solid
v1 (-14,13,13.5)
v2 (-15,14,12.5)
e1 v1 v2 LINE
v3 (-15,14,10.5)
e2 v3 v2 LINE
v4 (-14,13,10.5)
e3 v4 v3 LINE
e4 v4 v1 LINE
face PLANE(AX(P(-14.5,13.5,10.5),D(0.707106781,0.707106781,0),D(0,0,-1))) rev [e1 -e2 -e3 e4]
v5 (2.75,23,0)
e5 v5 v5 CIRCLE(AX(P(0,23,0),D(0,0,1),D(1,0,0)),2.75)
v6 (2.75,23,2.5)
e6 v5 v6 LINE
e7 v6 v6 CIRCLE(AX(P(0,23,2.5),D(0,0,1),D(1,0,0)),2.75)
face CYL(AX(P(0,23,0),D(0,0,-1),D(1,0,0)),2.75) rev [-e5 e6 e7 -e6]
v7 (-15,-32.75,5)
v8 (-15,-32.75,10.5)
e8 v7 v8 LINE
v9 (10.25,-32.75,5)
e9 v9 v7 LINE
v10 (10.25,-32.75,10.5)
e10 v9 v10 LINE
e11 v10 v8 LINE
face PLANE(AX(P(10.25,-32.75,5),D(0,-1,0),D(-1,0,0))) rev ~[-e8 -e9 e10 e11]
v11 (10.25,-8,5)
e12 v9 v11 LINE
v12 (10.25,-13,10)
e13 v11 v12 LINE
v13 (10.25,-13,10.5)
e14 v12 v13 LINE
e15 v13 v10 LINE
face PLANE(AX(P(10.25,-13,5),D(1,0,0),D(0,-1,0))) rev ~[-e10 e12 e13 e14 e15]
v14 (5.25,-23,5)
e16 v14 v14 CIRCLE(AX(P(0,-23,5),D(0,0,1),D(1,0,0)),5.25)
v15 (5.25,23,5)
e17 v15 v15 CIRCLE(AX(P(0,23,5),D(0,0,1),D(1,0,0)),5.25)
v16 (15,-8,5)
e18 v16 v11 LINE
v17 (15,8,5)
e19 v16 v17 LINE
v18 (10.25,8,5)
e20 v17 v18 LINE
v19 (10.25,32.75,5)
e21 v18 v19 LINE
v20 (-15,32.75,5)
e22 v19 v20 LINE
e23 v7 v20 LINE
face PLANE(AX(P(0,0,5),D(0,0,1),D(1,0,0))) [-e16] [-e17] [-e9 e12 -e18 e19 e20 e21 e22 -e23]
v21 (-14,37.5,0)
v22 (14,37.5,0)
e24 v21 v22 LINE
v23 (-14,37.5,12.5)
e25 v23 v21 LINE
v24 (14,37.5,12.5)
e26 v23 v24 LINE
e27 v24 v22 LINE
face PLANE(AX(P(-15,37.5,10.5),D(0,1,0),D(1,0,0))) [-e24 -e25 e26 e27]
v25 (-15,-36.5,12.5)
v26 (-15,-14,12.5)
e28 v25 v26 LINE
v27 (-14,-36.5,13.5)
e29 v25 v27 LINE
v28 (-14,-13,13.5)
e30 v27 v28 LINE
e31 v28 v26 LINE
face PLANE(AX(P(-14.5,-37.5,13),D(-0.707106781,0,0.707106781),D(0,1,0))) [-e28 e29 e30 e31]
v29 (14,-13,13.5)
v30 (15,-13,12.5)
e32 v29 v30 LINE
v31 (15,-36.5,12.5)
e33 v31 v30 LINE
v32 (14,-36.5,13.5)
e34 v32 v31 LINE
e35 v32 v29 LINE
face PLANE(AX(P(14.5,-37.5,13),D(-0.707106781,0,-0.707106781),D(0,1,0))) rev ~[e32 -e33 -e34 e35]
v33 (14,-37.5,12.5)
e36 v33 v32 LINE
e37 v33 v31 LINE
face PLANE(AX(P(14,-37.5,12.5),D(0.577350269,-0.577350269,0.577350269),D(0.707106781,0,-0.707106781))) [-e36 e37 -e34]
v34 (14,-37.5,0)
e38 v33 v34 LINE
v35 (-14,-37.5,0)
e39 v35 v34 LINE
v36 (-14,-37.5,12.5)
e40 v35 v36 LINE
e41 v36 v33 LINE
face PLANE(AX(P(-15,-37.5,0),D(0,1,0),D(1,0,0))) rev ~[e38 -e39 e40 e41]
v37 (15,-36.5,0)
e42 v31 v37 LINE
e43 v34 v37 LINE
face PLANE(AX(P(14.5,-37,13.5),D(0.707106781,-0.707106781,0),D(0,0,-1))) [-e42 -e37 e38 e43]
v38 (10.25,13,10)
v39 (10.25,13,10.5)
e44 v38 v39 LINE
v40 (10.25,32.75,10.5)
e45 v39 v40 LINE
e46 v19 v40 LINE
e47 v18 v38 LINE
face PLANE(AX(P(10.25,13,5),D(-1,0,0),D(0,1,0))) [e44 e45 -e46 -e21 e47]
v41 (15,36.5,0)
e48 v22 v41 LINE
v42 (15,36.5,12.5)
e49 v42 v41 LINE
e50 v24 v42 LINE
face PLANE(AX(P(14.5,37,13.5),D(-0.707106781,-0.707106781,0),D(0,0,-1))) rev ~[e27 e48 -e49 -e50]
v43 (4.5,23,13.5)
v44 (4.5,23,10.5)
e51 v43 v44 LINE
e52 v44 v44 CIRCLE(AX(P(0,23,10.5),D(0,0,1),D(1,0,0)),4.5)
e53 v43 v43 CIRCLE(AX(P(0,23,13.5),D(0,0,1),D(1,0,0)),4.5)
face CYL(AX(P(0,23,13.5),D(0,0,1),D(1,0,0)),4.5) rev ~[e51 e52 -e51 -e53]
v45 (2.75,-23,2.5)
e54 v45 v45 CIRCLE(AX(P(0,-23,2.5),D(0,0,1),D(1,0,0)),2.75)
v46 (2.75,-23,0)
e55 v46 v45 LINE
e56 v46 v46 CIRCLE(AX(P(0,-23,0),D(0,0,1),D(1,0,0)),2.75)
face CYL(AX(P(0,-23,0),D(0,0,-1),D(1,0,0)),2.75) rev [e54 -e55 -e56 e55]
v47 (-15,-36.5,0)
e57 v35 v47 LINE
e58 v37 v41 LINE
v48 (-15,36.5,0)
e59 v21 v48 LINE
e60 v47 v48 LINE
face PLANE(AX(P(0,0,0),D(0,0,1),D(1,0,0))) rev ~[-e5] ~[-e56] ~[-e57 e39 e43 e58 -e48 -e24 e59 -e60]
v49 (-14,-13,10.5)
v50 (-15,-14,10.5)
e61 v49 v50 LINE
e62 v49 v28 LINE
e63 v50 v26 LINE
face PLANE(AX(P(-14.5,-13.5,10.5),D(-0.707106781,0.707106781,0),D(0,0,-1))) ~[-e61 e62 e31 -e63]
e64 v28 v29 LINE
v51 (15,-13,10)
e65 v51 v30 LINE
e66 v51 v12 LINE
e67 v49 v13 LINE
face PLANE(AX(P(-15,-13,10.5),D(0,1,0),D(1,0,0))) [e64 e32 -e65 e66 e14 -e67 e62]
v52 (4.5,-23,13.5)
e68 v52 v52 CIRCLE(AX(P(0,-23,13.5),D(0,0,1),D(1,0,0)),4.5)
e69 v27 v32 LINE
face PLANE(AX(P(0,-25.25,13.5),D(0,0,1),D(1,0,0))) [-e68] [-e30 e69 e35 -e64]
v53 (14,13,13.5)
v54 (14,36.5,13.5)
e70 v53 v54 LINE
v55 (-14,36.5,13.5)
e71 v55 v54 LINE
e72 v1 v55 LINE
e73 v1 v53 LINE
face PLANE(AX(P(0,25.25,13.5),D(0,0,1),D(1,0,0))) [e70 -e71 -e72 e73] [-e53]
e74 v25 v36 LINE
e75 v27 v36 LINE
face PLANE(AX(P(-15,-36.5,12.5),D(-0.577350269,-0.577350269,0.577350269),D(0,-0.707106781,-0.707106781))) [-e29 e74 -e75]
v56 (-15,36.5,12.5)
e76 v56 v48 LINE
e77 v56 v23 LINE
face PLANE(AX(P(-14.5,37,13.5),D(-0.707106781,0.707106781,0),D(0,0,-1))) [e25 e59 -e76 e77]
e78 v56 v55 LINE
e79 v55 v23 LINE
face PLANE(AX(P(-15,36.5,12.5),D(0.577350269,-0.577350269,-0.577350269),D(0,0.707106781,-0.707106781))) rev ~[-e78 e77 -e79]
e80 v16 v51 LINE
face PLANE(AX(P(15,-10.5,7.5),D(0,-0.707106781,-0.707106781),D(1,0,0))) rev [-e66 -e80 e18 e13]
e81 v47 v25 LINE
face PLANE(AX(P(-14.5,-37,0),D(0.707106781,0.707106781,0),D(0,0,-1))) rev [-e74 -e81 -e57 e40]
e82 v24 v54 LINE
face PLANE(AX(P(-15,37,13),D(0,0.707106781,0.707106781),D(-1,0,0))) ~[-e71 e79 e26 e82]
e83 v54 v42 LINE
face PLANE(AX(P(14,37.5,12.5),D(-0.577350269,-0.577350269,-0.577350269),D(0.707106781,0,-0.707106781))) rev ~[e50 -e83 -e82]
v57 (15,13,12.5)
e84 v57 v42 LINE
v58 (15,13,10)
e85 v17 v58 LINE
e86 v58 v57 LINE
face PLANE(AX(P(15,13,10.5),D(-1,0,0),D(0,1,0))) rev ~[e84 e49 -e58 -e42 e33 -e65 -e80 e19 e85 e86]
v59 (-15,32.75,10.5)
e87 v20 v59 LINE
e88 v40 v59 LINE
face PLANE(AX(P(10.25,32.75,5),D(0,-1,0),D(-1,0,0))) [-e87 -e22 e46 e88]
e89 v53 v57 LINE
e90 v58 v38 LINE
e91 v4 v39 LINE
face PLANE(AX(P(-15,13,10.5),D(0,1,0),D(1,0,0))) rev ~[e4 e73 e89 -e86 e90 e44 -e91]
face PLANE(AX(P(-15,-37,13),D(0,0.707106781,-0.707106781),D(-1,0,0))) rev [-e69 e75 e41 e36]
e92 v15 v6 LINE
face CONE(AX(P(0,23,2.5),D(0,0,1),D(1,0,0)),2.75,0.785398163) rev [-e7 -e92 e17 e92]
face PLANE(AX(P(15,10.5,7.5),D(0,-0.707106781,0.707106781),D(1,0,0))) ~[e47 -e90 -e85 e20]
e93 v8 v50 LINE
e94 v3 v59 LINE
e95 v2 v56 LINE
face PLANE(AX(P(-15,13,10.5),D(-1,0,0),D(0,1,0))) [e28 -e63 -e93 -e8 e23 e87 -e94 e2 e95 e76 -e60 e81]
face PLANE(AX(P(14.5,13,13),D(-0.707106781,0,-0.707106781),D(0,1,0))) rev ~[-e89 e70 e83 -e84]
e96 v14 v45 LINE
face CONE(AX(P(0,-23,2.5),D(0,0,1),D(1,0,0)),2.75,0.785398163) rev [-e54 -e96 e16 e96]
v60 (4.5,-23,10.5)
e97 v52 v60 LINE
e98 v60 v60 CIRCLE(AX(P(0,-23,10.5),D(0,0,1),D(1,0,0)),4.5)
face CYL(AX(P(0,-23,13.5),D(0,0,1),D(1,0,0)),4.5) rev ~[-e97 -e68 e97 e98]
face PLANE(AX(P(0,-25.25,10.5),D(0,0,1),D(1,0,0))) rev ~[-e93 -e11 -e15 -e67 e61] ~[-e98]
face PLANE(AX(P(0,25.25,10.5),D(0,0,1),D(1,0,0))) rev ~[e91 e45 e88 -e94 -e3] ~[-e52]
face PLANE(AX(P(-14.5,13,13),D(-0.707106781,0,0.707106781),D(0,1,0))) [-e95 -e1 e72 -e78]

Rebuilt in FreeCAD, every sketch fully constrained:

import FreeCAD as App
import Part
import Sketcher


def edges_at(feature, points):
    """Names of the edges that pass closest to the given points."""
    edges = feature.Shape.Edges
    near = lambda p: min(range(len(edges)), key=lambda i: edges[i].distToShape(Part.Vertex(*p))[0])
    return sorted({f"Edge{near(p) + 1}" for p in points})

doc = App.newDocument("Part")
body = doc.addObject("PartDesign::Body", "Body")

sketch1 = body.newObject("Sketcher::SketchObject", "Sketch")
sketch1.AttachmentSupport = (doc.getObject("XY_Plane"), [""])
sketch1.MapMode = "FlatFace"
sketch1.addGeometry(Part.LineSegment(App.Vector(-15, 37.5, 0), App.Vector(-15, -37.5, 0)), False)
sketch1.addGeometry(Part.LineSegment(App.Vector(-15, -37.5, 0), App.Vector(15, -37.5, 0)), False)
sketch1.addGeometry(Part.LineSegment(App.Vector(15, -37.5, 0), App.Vector(15, 37.5, 0)), False)
sketch1.addGeometry(Part.LineSegment(App.Vector(15, 37.5, 0), App.Vector(-15, 37.5, 0)), False)
sketch1.addGeometry(Part.Circle(App.Vector(0, -23, 0), App.Vector(0, 0, 1), 2.8), False)
sketch1.addGeometry(Part.Circle(App.Vector(0, 23, 0), App.Vector(0, 0, 1), 2.8), False)
sketch1.addConstraint(Sketcher.Constraint("Coincident", 0, 2, 1, 1))
sketch1.addConstraint(Sketcher.Constraint("Coincident", 1, 2, 2, 1))
sketch1.addConstraint(Sketcher.Constraint("Coincident", 2, 2, 3, 1))
sketch1.addConstraint(Sketcher.Constraint("Coincident", 3, 2, 0, 1))
sketch1.addConstraint(Sketcher.Constraint("Vertical", 0))
sketch1.addConstraint(Sketcher.Constraint("Horizontal", 1))
sketch1.addConstraint(Sketcher.Constraint("Vertical", 2))
sketch1.addConstraint(Sketcher.Constraint("Horizontal", 3))
sketch1.addConstraint(Sketcher.Constraint("Equal", 4, 5))
sketch1.addConstraint(Sketcher.Constraint("Symmetric", 4, 3, 5, 3, -1, 1))
sketch1.addConstraint(Sketcher.Constraint("Symmetric", 0, 2, 2, 2, -1, 1))
sketch1.addConstraint(Sketcher.Constraint("PointOnObject", 4, 3, -2))
sketch1.addConstraint(Sketcher.Constraint("Diameter", 4, 5.5))
sketch1.addConstraint(Sketcher.Constraint("DistanceX", 1, 1, 1, 2, 30.0))
sketch1.addConstraint(Sketcher.Constraint("DistanceY", 0, 2, 0, 1, 75.0))
sketch1.addConstraint(Sketcher.Constraint("DistanceY", 4, 3, -1, 1, 23.0))
pad1 = body.newObject("PartDesign::Pad", "Pad")
pad1.Profile = sketch1
pad1.Length = 5

sketch2 = body.newObject("Sketcher::SketchObject", "Sketch001")
sketch2.AttachmentSupport = (doc.getObject("XY_Plane"), [""])
sketch2.MapMode = "FlatFace"
sketch2.AttachmentOffset = App.Placement(App.Vector(0, 0, 5), App.Rotation())
sketch2.addGeometry(Part.LineSegment(App.Vector(15, 37.5, 0), App.Vector(-15, 37.5, 0)), False)
sketch2.addGeometry(Part.LineSegment(App.Vector(-15, 37.5, 0), App.Vector(-15, 32.8, 0)), False)
sketch2.addGeometry(Part.LineSegment(App.Vector(-15, 32.8, 0), App.Vector(10.2, 32.8, 0)), False)
sketch2.addGeometry(Part.LineSegment(App.Vector(10.2, 32.8, 0), App.Vector(10.2, 13, 0)), False)
sketch2.addGeometry(Part.LineSegment(App.Vector(10.2, 13, 0), App.Vector(15, 13, 0)), False)
sketch2.addGeometry(Part.LineSegment(App.Vector(15, 13, 0), App.Vector(15, 37.5, 0)), False)
sketch2.addGeometry(Part.LineSegment(App.Vector(-15, -37.5, 0), App.Vector(15, -37.5, 0)), False)
sketch2.addGeometry(Part.LineSegment(App.Vector(15, -37.5, 0), App.Vector(15, -13, 0)), False)
sketch2.addGeometry(Part.LineSegment(App.Vector(15, -13, 0), App.Vector(10.2, -13, 0)), False)
sketch2.addGeometry(Part.LineSegment(App.Vector(10.2, -13, 0), App.Vector(10.2, -32.8, 0)), False)
sketch2.addGeometry(Part.LineSegment(App.Vector(10.2, -32.8, 0), App.Vector(-15, -32.8, 0)), False)
sketch2.addGeometry(Part.LineSegment(App.Vector(-15, -32.8, 0), App.Vector(-15, -37.5, 0)), False)
sketch2.addConstraint(Sketcher.Constraint("Coincident", 0, 2, 1, 1))
sketch2.addConstraint(Sketcher.Constraint("Coincident", 1, 2, 2, 1))
sketch2.addConstraint(Sketcher.Constraint("Coincident", 2, 2, 3, 1))
sketch2.addConstraint(Sketcher.Constraint("Coincident", 3, 2, 4, 1))
sketch2.addConstraint(Sketcher.Constraint("Coincident", 4, 2, 5, 1))
sketch2.addConstraint(Sketcher.Constraint("Coincident", 5, 2, 0, 1))
sketch2.addConstraint(Sketcher.Constraint("Coincident", 6, 2, 7, 1))
sketch2.addConstraint(Sketcher.Constraint("Coincident", 7, 2, 8, 1))
sketch2.addConstraint(Sketcher.Constraint("Coincident", 8, 2, 9, 1))
sketch2.addConstraint(Sketcher.Constraint("Coincident", 9, 2, 10, 1))
sketch2.addConstraint(Sketcher.Constraint("Coincident", 10, 2, 11, 1))
sketch2.addConstraint(Sketcher.Constraint("Coincident", 11, 2, 6, 1))
sketch2.addConstraint(Sketcher.Constraint("Horizontal", 0))
sketch2.addConstraint(Sketcher.Constraint("Vertical", 1))
sketch2.addConstraint(Sketcher.Constraint("Horizontal", 2))
sketch2.addConstraint(Sketcher.Constraint("Vertical", 3))
sketch2.addConstraint(Sketcher.Constraint("Horizontal", 4))
sketch2.addConstraint(Sketcher.Constraint("Vertical", 5))
sketch2.addConstraint(Sketcher.Constraint("Horizontal", 6))
sketch2.addConstraint(Sketcher.Constraint("Vertical", 7))
sketch2.addConstraint(Sketcher.Constraint("Horizontal", 8))
sketch2.addConstraint(Sketcher.Constraint("Vertical", 9))
sketch2.addConstraint(Sketcher.Constraint("Horizontal", 10))
sketch2.addConstraint(Sketcher.Constraint("Vertical", 11))
sketch2.addConstraint(Sketcher.Constraint("Symmetric", 0, 2, 6, 2, -1, 1))
sketch2.addConstraint(Sketcher.Constraint("Symmetric", 4, 2, 7, 2, -1))
sketch2.addConstraint(Sketcher.Constraint("Symmetric", 2, 2, 9, 2, -1))
sketch2.addConstraint(Sketcher.Constraint("Vertical", 1, 2, 10, 2))
sketch2.addConstraint(Sketcher.Constraint("Equal", 8, 1))
sketch2.addConstraint(Sketcher.Constraint("DistanceX", 0, 2, 0, 1, 30.0))
sketch2.addConstraint(Sketcher.Constraint("DistanceY", 5, 1, 5, 2, 24.5))
sketch2.addConstraint(Sketcher.Constraint("DistanceY", -1, 1, 3, 2, 13.0))
sketch2.addConstraint(Sketcher.Constraint("DistanceX", 2, 1, 2, 2, 25.25))
pad2 = body.newObject("PartDesign::Pad", "Pad001")
pad2.Profile = sketch2
pad2.Length = 5.5

sketch3 = body.newObject("Sketcher::SketchObject", "Sketch002")
sketch3.AttachmentSupport = (doc.getObject("XY_Plane"), [""])
sketch3.MapMode = "FlatFace"
sketch3.AttachmentOffset = App.Placement(App.Vector(0, 0, 10.5), App.Rotation())
sketch3.addGeometry(Part.LineSegment(App.Vector(-15, 38, 0), App.Vector(-15, 13, 0)), False)
sketch3.addGeometry(Part.LineSegment(App.Vector(-15, 13, 0), App.Vector(15, 13, 0)), False)
sketch3.addGeometry(Part.LineSegment(App.Vector(15, 13, 0), App.Vector(15, 38, 0)), False)
sketch3.addGeometry(Part.LineSegment(App.Vector(15, 38, 0), App.Vector(-15, 38, 0)), False)
sketch3.addGeometry(Part.LineSegment(App.Vector(-15, -13, 0), App.Vector(-15, -38, 0)), False)
sketch3.addGeometry(Part.LineSegment(App.Vector(-15, -38, 0), App.Vector(15, -38, 0)), False)
sketch3.addGeometry(Part.LineSegment(App.Vector(15, -38, 0), App.Vector(15, -13, 0)), False)
sketch3.addGeometry(Part.LineSegment(App.Vector(15, -13, 0), App.Vector(-15, -13, 0)), False)
sketch3.addConstraint(Sketcher.Constraint("Coincident", 0, 2, 1, 1))
sketch3.addConstraint(Sketcher.Constraint("Coincident", 1, 2, 2, 1))
sketch3.addConstraint(Sketcher.Constraint("Coincident", 2, 2, 3, 1))
sketch3.addConstraint(Sketcher.Constraint("Coincident", 3, 2, 0, 1))
sketch3.addConstraint(Sketcher.Constraint("Coincident", 4, 2, 5, 1))
sketch3.addConstraint(Sketcher.Constraint("Coincident", 5, 2, 6, 1))
sketch3.addConstraint(Sketcher.Constraint("Coincident", 6, 2, 7, 1))
sketch3.addConstraint(Sketcher.Constraint("Coincident", 7, 2, 4, 1))
sketch3.addConstraint(Sketcher.Constraint("Vertical", 0))
sketch3.addConstraint(Sketcher.Constraint("Horizontal", 1))
sketch3.addConstraint(Sketcher.Constraint("Vertical", 2))
sketch3.addConstraint(Sketcher.Constraint("Horizontal", 3))
sketch3.addConstraint(Sketcher.Constraint("Vertical", 4))
sketch3.addConstraint(Sketcher.Constraint("Horizontal", 5))
sketch3.addConstraint(Sketcher.Constraint("Vertical", 6))
sketch3.addConstraint(Sketcher.Constraint("Horizontal", 7))
sketch3.addConstraint(Sketcher.Constraint("Symmetric", 2, 2, 4, 2, -1, 1))
sketch3.addConstraint(Sketcher.Constraint("Symmetric", 0, 2, 6, 2, -1, 1))
sketch3.addConstraint(Sketcher.Constraint("Vertical", 3, 2, 4, 2))
sketch3.addConstraint(Sketcher.Constraint("DistanceX", 1, 1, 1, 2, 30.0))
sketch3.addConstraint(Sketcher.Constraint("DistanceY", 0, 2, 0, 1, 24.5))
sketch3.addConstraint(Sketcher.Constraint("DistanceY", -1, 1, 0, 2, 13.0))
pad3 = body.newObject("PartDesign::Pad", "Pad002")
pad3.Profile = sketch3
pad3.Length = 3
doc.recompute()

chamfer = body.newObject("PartDesign::Chamfer", "Chamfer")
chamfer.Base = (pad3, edges_at(pad3, [(-2.75, -23, 5), (-2.75, 23, 5)]))
chamfer.Size = 2.5

sketch4 = body.newObject("Sketcher::SketchObject", "Sketch003")
sketch4.AttachmentSupport = (doc.getObject("XY_Plane"), [""])
sketch4.MapMode = "FlatFace"
sketch4.AttachmentOffset = App.Placement(App.Vector(0, 0, 13.5), App.Rotation())
sketch4.addGeometry(Part.Circle(App.Vector(0, 23, 0), App.Vector(0, 0, 1), 4.5), False)
sketch4.addGeometry(Part.Circle(App.Vector(0, -23, 0), App.Vector(0, 0, 1), 4.5), False)
sketch4.addConstraint(Sketcher.Constraint("Equal", 0, 1))
sketch4.addConstraint(Sketcher.Constraint("Symmetric", 0, 3, 1, 3, -1, 1))
sketch4.addConstraint(Sketcher.Constraint("PointOnObject", 0, 3, -2))
sketch4.addConstraint(Sketcher.Constraint("Diameter", 0, 9.0))
sketch4.addConstraint(Sketcher.Constraint("DistanceY", -1, 1, 0, 3, 23.0))
pocket1 = body.newObject("PartDesign::Pocket", "Pocket")
pocket1.Profile = sketch4
pocket1.Length = 3
doc.recompute()

chamfer2 = body.newObject("PartDesign::Chamfer", "Chamfer001")
chamfer2.Base = (pocket1, edges_at(pocket1, [(12.625, 13, 5), (12.625, -13, 5)]))
chamfer2.Size = 5
doc.recompute()

chamfer3 = body.newObject("PartDesign::Chamfer", "Chamfer002")
chamfer3.Base = (chamfer2, edges_at(chamfer2, [
    (15, 25.25, 13.5),
    (0, 37.5, 13.5),
    (15, -25.25, 13.5),
    (0, -37.5, 13.5),
    (-15, 25.25, 13.5),
    (-15, -25.25, 13.5),
    (-15, 13, 12),
    (-15, -13, 12),
    (-15, -37.5, 6.75),
    (-15, 37.5, 6.75),
    (15, -37.5, 6.75),
    (15, 37.5, 6.75),
]))
chamfer3.Size = 1

doc.recompute()
